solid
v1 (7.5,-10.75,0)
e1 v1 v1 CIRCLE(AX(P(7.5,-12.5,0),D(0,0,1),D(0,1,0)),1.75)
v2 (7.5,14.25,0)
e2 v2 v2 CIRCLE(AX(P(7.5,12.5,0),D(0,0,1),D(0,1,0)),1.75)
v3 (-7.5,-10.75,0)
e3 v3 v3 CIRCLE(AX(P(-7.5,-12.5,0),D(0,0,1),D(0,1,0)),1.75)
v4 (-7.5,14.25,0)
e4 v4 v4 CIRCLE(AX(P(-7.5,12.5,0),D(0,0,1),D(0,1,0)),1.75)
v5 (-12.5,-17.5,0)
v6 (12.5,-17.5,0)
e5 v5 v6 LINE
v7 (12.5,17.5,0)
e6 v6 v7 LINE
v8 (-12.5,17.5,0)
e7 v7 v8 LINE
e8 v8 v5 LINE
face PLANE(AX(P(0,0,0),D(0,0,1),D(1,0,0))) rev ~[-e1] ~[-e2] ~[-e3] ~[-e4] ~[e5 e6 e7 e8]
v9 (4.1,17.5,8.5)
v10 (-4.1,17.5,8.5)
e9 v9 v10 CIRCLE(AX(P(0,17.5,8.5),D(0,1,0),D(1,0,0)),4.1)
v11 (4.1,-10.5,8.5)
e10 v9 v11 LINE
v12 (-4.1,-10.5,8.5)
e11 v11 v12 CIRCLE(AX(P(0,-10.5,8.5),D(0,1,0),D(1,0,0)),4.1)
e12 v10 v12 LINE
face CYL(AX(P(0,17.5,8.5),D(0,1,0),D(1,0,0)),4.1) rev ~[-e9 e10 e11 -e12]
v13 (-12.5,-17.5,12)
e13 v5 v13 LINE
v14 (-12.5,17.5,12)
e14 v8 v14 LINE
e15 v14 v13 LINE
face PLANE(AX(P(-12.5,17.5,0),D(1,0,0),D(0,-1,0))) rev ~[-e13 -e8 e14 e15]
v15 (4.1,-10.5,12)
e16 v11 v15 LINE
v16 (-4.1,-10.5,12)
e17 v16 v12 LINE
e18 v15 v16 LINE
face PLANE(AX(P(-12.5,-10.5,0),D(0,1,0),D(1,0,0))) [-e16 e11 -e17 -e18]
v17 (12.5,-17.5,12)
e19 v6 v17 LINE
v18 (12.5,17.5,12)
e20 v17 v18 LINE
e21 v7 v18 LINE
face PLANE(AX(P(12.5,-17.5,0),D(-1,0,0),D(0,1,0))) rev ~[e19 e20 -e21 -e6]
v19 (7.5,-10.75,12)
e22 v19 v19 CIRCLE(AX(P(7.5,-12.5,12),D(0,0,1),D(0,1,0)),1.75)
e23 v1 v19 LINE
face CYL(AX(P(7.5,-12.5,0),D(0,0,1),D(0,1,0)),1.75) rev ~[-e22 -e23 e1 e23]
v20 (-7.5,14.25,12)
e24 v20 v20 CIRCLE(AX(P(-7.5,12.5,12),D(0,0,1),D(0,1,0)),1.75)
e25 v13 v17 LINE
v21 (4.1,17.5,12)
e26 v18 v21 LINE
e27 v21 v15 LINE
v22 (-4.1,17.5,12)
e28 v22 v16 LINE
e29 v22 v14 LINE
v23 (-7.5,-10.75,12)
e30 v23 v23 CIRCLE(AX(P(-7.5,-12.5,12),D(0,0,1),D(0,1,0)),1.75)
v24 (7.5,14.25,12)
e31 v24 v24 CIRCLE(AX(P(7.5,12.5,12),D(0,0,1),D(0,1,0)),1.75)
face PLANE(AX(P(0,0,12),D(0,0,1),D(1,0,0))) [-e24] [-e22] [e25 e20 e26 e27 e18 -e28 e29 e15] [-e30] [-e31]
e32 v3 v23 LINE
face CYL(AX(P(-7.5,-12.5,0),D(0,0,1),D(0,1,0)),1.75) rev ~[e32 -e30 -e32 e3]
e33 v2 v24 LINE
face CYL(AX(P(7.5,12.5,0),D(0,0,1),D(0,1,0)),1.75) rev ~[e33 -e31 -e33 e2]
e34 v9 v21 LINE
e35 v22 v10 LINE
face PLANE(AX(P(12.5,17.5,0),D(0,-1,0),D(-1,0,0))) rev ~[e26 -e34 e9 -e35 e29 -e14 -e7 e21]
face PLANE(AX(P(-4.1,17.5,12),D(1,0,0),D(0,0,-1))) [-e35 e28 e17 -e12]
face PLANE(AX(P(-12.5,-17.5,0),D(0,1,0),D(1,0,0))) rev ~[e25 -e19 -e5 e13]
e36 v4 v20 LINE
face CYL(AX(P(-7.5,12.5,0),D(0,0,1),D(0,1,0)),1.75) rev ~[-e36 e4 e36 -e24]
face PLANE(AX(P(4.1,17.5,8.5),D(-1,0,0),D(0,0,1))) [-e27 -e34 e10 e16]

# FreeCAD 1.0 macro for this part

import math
import FreeCAD as App
import Part
import Sketcher

V = App.Vector

doc = App.newDocument("Part")
body = doc.addObject("PartDesign::Body", "Body")

sketch1 = body.newObject("Sketcher::SketchObject", "Sketch")
sketch1.AttachmentSupport = (doc.getObject("XY_Plane"), [""])
sketch1.MapMode = "FlatFace"
sketch1.addGeometry([
    Part.LineSegment(V(-12.5, 17.5, 0), V(-12.5, -17.5, 0)),
    Part.LineSegment(V(-12.5, -17.5, 0), V(12.5, -17.5, 0)),
    Part.LineSegment(V(12.5, -17.5, 0), V(12.5, 17.5, 0)),
    Part.LineSegment(V(12.5, 17.5, 0), V(-12.5, 17.5, 0)),
], False)
sketch1.addConstraint([
    Sketcher.Constraint("Coincident", 0, 2, 1, 1),
    Sketcher.Constraint("Coincident", 1, 2, 2, 1),
    Sketcher.Constraint("Coincident", 2, 2, 3, 1),
    Sketcher.Constraint("Coincident", 3, 2, 0, 1),
    Sketcher.Constraint("Vertical", 0),
    Sketcher.Constraint("Horizontal", 1),
    Sketcher.Constraint("Vertical", 2),
    Sketcher.Constraint("Horizontal", 3),
    Sketcher.Constraint("Symmetric", 0, 2, 2, 2, -1, 1),
    Sketcher.Constraint("DistanceX", 1, 1, 1, 2, 25.0),
    Sketcher.Constraint("DistanceY", 0, 2, 0, 1, 35.0),
])
pad1 = body.newObject("PartDesign::Pad", "Pad")
pad1.Profile = sketch1
pad1.Length = 12

sketch2 = body.newObject("Sketcher::SketchObject", "Sketch001")
sketch2.AttachmentSupport = (doc.getObject("XY_Plane"), [""])
sketch2.MapMode = "FlatFace"
sketch2.addGeometry([
    Part.Circle(V(-7.5, 12.5, 0), V(0, 0, 1), 1.75),
    Part.Circle(V(7.5, 12.5, 0), V(0, 0, 1), 1.75),
    Part.Circle(V(7.5, -12.5, 0), V(0, 0, 1), 1.75),
    Part.Circle(V(-7.5, -12.5, 0), V(0, 0, 1), 1.75),
], False)
sketch2.addConstraint([
    Sketcher.Constraint("Equal", 0, 1),
    Sketcher.Constraint("Equal", 1, 2),
    Sketcher.Constraint("Equal", 2, 3),
    Sketcher.Constraint("Symmetric", 0, 3, 2, 3, -1, 1),
    Sketcher.Constraint("Symmetric", 1, 3, 3, 3, -1, 1),
    Sketcher.Constraint("Symmetric", 0, 3, 1, 3, -2),
    Sketcher.Constraint("Diameter", 0, 3.5),
    Sketcher.Constraint("DistanceX", 0, 3, 1, 3, 15.0),
    Sketcher.Constraint("DistanceY", 2, 3, 1, 3, 25.0),
])
doc.recompute()
hole = body.newObject("PartDesign::Hole", "Hole")
hole.Profile = sketch2
hole.ThreadType = "None"
hole.Diameter = 3.5
hole.DepthType = "ThroughAll"
hole.Reversed = True

sketch3 = body.newObject("Sketcher::SketchObject", "Sketch002")
sketch3.AttachmentSupport = (doc.getObject("XZ_Plane"), [""])
sketch3.MapMode = "FlatFace"
sketch3.AttachmentOffset = App.Placement(V(0, 0, -17.5), App.Rotation())
sketch3.addGeometry([
    Part.LineSegment(V(-4.1, 12, 0), V(4.1, 12, 0)),
    Part.LineSegment(V(4.1, 12, 0), V(4.1, 8.5, 0)),
    Part.ArcOfCircle(Part.Circle(V(0, 8.5, 0), V(0, 0, 1), 4.1), math.radians(180), math.radians(360)),
    Part.LineSegment(V(-4.1, 8.5, 0), V(-4.1, 12, 0)),
], False)
sketch3.addConstraint([
    Sketcher.Constraint("Coincident", 0, 2, 1, 1),
    Sketcher.Constraint("Tangent", 1, 2, 2, 2),
    Sketcher.Constraint("Tangent", 2, 1, 3, 1),
    Sketcher.Constraint("Coincident", 3, 2, 0, 1),
    Sketcher.Constraint("Horizontal", 0),
    Sketcher.Constraint("Vertical", 1),
    Sketcher.Constraint("Vertical", 3),
    Sketcher.Constraint("PointOnObject", 2, 3, -2),
    Sketcher.Constraint("Radius", 2, 4.1),
    Sketcher.Constraint("DistanceY", 1, 2, 1, 1, 3.5),
    Sketcher.Constraint("DistanceY", -1, 1, 0, 2, 12.0),
])
pocket1 = body.newObject("PartDesign::Pocket", "Pocket")
pocket1.Profile = sketch3
pocket1.Length = 28
pocket1.Reversed = True

doc.recompute()
